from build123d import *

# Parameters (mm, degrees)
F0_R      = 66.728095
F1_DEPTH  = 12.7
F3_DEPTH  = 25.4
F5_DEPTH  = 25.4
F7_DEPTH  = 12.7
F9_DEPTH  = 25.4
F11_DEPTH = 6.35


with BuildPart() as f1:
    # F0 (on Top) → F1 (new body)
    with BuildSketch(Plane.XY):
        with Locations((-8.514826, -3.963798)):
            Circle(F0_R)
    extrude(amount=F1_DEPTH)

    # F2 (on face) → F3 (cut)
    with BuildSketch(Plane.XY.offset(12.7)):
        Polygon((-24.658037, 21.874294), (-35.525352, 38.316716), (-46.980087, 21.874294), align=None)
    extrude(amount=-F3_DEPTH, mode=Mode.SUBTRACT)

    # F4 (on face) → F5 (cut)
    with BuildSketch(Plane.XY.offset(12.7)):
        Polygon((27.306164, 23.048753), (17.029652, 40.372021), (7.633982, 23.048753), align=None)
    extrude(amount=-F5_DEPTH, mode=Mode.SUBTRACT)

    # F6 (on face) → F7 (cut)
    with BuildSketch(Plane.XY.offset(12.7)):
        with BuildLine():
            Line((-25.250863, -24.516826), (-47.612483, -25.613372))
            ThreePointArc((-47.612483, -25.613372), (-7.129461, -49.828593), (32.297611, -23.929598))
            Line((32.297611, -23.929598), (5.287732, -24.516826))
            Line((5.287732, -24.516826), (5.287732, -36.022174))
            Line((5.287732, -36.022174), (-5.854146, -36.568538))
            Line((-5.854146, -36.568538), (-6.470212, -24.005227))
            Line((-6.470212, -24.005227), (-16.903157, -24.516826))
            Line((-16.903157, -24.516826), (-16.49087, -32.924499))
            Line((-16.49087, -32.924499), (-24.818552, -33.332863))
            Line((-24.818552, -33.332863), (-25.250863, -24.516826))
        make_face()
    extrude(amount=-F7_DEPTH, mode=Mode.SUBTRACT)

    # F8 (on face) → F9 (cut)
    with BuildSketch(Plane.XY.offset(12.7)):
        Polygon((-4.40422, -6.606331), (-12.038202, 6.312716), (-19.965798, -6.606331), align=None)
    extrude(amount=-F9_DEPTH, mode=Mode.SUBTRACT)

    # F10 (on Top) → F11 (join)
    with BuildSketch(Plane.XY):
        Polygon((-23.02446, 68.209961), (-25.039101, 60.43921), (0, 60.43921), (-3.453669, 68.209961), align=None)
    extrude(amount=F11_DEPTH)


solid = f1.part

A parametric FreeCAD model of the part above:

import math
import FreeCAD as App
import Part
import Sketcher
from FreeCAD import Vector
Q = App.Units.Quantity

doc = App.newDocument("Part")
params = doc.addObject("Spreadsheet::Sheet", "Params")
for row, (alias, value) in enumerate([
    ("pad1_length", "0.5 in"),
    ("pocket1_length", "1 in"),
    ("pocket2_length", "1 in"),
    ("pocket3_length", "0.5 in"),
    ("pocket4_length", "1 in"),
    ("pad2_length", "0.25 in"),
], start=1):
    params.set(f"A{row}", alias)
    params.set(f"B{row}", "=" + value)
    params.setAlias(f"B{row}", alias)

body = doc.addObject("PartDesign::Body", "Body")

# Sketch on XY plane
sketch1 = body.newObject("Sketcher::SketchObject", "Sketch")
sketch1.AttachmentSupport = (doc.getObject("XY_Plane"), [""])
sketch1.MapMode = "FlatFace"
sketch1.addGeometry(Part.Circle(Vector(-9, -4, 0), Vector(0, 0, 1), 67), False)
sketch1.addConstraint([
    Sketcher.Constraint("Diameter", 0, Q("133.45619 mm")),
    Sketcher.Constraint("DistanceY", 0, 3, -1, 1, Q("3.963798 mm")),
    Sketcher.Constraint("DistanceX", 0, 3, -1, 1, Q("8.514826 mm")),
])
pad1 = body.newObject("PartDesign::Pad", "Pad")
pad1.Profile = sketch1
pad1.setExpression("Length", "Params.pad1_length")

# Sketch on XY plane
sketch2 = body.newObject("Sketcher::SketchObject", "Sketch001")
sketch2.AttachmentSupport = (doc.getObject("XY_Plane"), [""])
sketch2.MapMode = "FlatFace"
sketch2.AttachmentOffset = App.Placement(Vector(0, 0, 0.5 * 25.4), App.Rotation())
sketch2.addGeometry([
    Part.LineSegment(Vector(-25, 22, 0), Vector(-36, 38, 0)),
    Part.LineSegment(Vector(-36, 38, 0), Vector(-47, 22, 0)),
    Part.LineSegment(Vector(-47, 22, 0), Vector(-25, 22, 0)),
], False)
sketch2.addConstraint([
    Sketcher.Constraint("Coincident", 0, 2, 1, 1),
    Sketcher.Constraint("Coincident", 1, 2, 2, 1),
    Sketcher.Constraint("Coincident", 2, 2, 0, 1),
    Sketcher.Constraint("Horizontal", 2),
    Sketcher.Constraint("DistanceX", 2, 1, 2, 2, Q("22.32205 mm")),
    Sketcher.Constraint("Distance", 0, Q("19.70918 mm")),
    Sketcher.Constraint("DistanceX", 0, 2, -1, 1, Q("35.525352 mm")),
    Sketcher.Constraint("Distance", 1, Q("20.039067 mm")),
    Sketcher.Constraint("DistanceY", -1, 1, 0, 2, Q("38.316716 mm")),
])
pocket1 = body.newObject("PartDesign::Pocket", "Pocket")
pocket1.Profile = sketch2
pocket1.setExpression("Length", "Params.pocket1_length")

# Sketch on XY plane
sketch3 = body.newObject("Sketcher::SketchObject", "Sketch002")
sketch3.AttachmentSupport = (doc.getObject("XY_Plane"), [""])
sketch3.MapMode = "FlatFace"
sketch3.AttachmentOffset = App.Placement(Vector(0, 0, 0.5 * 25.4), App.Rotation())
sketch3.addGeometry([
    Part.LineSegment(Vector(27, 23, 0), Vector(17, 40, 0)),
    Part.LineSegment(Vector(17, 40, 0), Vector(8, 23, 0)),
    Part.LineSegment(Vector(8, 23, 0), Vector(27, 23, 0)),
], False)
sketch3.addConstraint([
    Sketcher.Constraint("Coincident", 0, 2, 1, 1),
    Sketcher.Constraint("Coincident", 1, 2, 2, 1),
    Sketcher.Constraint("Coincident", 2, 2, 0, 1),
    Sketcher.Constraint("Horizontal", 2),
    Sketcher.Constraint("DistanceX", 2, 1, 2, 2, Q("19.672182 mm")),
    Sketcher.Constraint("DistanceX", -1, 1, 0, 2, Q("17.029652 mm")),
    Sketcher.Constraint("DistanceY", -1, 1, 0, 2, Q("40.372021 mm")),
    Sketcher.Constraint("DistanceX", -1, 1, 1, 2, Q("7.633982 mm")),
    Sketcher.Constraint("Distance", 0, Q("20.142053 mm")),
])
pocket2 = body.newObject("PartDesign::Pocket", "Pocket001")
pocket2.Profile = sketch3
pocket2.setExpression("Length", "Params.pocket2_length")

# Sketch on XY plane
sketch4 = body.newObject("Sketcher::SketchObject", "Sketch003")
sketch4.AttachmentSupport = (doc.getObject("XY_Plane"), [""])
sketch4.MapMode = "FlatFace"
sketch4.AttachmentOffset = App.Placement(Vector(0, 0, 0.5 * 25.4), App.Rotation())
sketch4.addGeometry([
    Part.LineSegment(Vector(-25, -25, 0), Vector(-48, -26, 0)),  # 0
    Part.ArcOfCircle(Part.Circle(Vector(-8, -5, 0), Vector(0, 0, 1), 44), math.radians(-153), math.radians(-25)),  # 1
    Part.LineSegment(Vector(32, -24, 0), Vector(5, -25, 0)),  # 2
    Part.LineSegment(Vector(5, -25, 0), Vector(5, -36, 0)),  # 3
    Part.LineSegment(Vector(5, -36, 0), Vector(-6, -37, 0)),  # 4
    Part.LineSegment(Vector(-6, -37, 0), Vector(-6, -24, 0)),  # 5
    Part.LineSegment(Vector(-6, -24, 0), Vector(-17, -25, 0)),  # 6
    Part.LineSegment(Vector(-17, -25, 0), Vector(-16, -33, 0)),  # 7
    Part.LineSegment(Vector(-16, -33, 0), Vector(-25, -33, 0)),  # 8
    Part.LineSegment(Vector(-25, -33, 0), Vector(-25, -25, 0)),  # 9
], False)
sketch4.addConstraint([
    Sketcher.Constraint("Coincident", 0, 2, 1, 1),
    Sketcher.Constraint("Coincident", 1, 2, 2, 1),
    Sketcher.Constraint("Coincident", 2, 2, 3, 1),
    Sketcher.Constraint("Coincident", 3, 2, 4, 1),
    Sketcher.Constraint("Coincident", 4, 2, 5, 1),
    Sketcher.Constraint("Coincident", 5, 2, 6, 1),
    Sketcher.Constraint("Coincident", 6, 2, 7, 1),
    Sketcher.Constraint("Coincident", 7, 2, 8, 1),
    Sketcher.Constraint("Coincident", 8, 2, 9, 1),
    Sketcher.Constraint("Coincident", 9, 2, 0, 1),
    Sketcher.Constraint("Vertical", 3),
    Sketcher.Constraint("Parallel", 0, 4),
    Sketcher.Constraint("Perpendicular", 4, 5),
    Sketcher.Constraint("Perpendicular", 5, 6),
    Sketcher.Constraint("Perpendicular", 6, 7),
    Sketcher.Constraint("Perpendicular", 7, 8),
    Sketcher.Constraint("Perpendicular", 8, 9),
    Sketcher.Constraint("Horizontal", 2, 2, 6, 2),
    Sketcher.Constraint("Horizontal", 6, 2, 9, 2),
    Sketcher.Constraint("Radius", 1, Q("44.393754 mm")),
    Sketcher.Constraint("DistanceY", 3, 2, 3, 1, Q("11.505348 mm")),
    Sketcher.Constraint("DistanceY", 7, 2, -1, 1, Q("32.924499 mm")),
    Sketcher.Constraint("DistanceX", 1, 3, 2, 2, Q("13.3524 mm")),
    Sketcher.Constraint("DistanceY", 2, 2, 5, 2, Q("0.511599 mm")),
    Sketcher.Constraint("DistanceX", 7, 2, 3, 2, Q("21.778602 mm")),
    Sketcher.Constraint("Distance", 0, Q("22.38849 mm")),
    Sketcher.Constraint("Distance", 2, Q("27.016262 mm")),
    Sketcher.Constraint("Distance", 6, Q("10.445481 mm")),
    Sketcher.Constraint("Distance", 8, Q("8.337688 mm")),
    Sketcher.Constraint("Distance", 9, Q("8.82663 mm")),
    Sketcher.Constraint("DistanceX", 1, 3, -1, 1, Q("8.064668 mm")),
])
pocket3 = body.newObject("PartDesign::Pocket", "Pocket002")
pocket3.Profile = sketch4
pocket3.setExpression("Length", "Params.pocket3_length")

# Sketch on XY plane
sketch5 = body.newObject("Sketcher::SketchObject", "Sketch004")
sketch5.AttachmentSupport = (doc.getObject("XY_Plane"), [""])
sketch5.MapMode = "FlatFace"
sketch5.AttachmentOffset = App.Placement(Vector(0, 0, 0.5 * 25.4), App.Rotation())
sketch5.addGeometry([
    Part.LineSegment(Vector(-4, -7, 0), Vector(-12, 6, 0)),
    Part.LineSegment(Vector(-12, 6, 0), Vector(-20, -7, 0)),
    Part.LineSegment(Vector(-20, -7, 0), Vector(-4, -7, 0)),
], False)
sketch5.addConstraint([
    Sketcher.Constraint("Coincident", 0, 2, 1, 1),
    Sketcher.Constraint("Coincident", 1, 2, 2, 1),
    Sketcher.Constraint("Coincident", 2, 2, 0, 1),
    Sketcher.Constraint("Horizontal", 2),
    Sketcher.Constraint("DistanceX", 2, 1, 2, 2, Q("15.561578 mm")),
    Sketcher.Constraint("Distance", 0, Q("15.005981 mm")),
    Sketcher.Constraint("Distance", 1, Q("15.157459 mm")),
    Sketcher.Constraint("DistanceY", 1, 2, -1, 1, Q("6.606331 mm")),
    Sketcher.Constraint("DistanceX", 2, 2, -1, 1, Q("4.40422 mm")),
])
pocket4 = body.newObject("PartDesign::Pocket", "Pocket003")
pocket4.Profile = sketch5
pocket4.setExpression("Length", "Params.pocket4_length")

# Sketch on XY plane
sketch6 = body.newObject("Sketcher::SketchObject", "Sketch005")
sketch6.AttachmentSupport = (doc.getObject("XY_Plane"), [""])
sketch6.MapMode = "FlatFace"
sketch6.addGeometry([
    Part.LineSegment(Vector(-23, 68, 0), Vector(-25, 60, 0)),
    Part.LineSegment(Vector(-25, 60, 0), Vector(0, 60, 0)),
    Part.LineSegment(Vector(0, 60, 0), Vector(-3, 68, 0)),
    Part.LineSegment(Vector(-3, 68, 0), Vector(-23, 68, 0)),
], False)
sketch6.addConstraint([
    Sketcher.Constraint("Coincident", 0, 2, 1, 1),
    Sketcher.Constraint("Coincident", 1, 2, 2, 1),
    Sketcher.Constraint("Coincident", 2, 2, 3, 1),
    Sketcher.Constraint("Coincident", 3, 2, 0, 1),
    Sketcher.Constraint("Horizontal", 1),
    Sketcher.Constraint("Horizontal", 3),
    Sketcher.Constraint("PointOnObject", 1, 2, -2),
    Sketcher.Constraint("DistanceX", 1, 1, 1, 2, Q("25.039101 mm")),
    Sketcher.Constraint("DistanceX", 3, 2, 3, 1, Q("19.570791 mm")),
    Sketcher.Constraint("Distance", 0, Q("8.027662 mm")),
    Sketcher.Constraint("Distance", 2, Q("8.50367 mm")),
    Sketcher.Constraint("DistanceY", -1, 1, 0, 2, Q("60.43921 mm")),
])
pad2 = body.newObject("PartDesign::Pad", "Pad001")
pad2.Profile = sketch6
pad2.setExpression("Length", "Params.pad2_length")

doc.recompute()
